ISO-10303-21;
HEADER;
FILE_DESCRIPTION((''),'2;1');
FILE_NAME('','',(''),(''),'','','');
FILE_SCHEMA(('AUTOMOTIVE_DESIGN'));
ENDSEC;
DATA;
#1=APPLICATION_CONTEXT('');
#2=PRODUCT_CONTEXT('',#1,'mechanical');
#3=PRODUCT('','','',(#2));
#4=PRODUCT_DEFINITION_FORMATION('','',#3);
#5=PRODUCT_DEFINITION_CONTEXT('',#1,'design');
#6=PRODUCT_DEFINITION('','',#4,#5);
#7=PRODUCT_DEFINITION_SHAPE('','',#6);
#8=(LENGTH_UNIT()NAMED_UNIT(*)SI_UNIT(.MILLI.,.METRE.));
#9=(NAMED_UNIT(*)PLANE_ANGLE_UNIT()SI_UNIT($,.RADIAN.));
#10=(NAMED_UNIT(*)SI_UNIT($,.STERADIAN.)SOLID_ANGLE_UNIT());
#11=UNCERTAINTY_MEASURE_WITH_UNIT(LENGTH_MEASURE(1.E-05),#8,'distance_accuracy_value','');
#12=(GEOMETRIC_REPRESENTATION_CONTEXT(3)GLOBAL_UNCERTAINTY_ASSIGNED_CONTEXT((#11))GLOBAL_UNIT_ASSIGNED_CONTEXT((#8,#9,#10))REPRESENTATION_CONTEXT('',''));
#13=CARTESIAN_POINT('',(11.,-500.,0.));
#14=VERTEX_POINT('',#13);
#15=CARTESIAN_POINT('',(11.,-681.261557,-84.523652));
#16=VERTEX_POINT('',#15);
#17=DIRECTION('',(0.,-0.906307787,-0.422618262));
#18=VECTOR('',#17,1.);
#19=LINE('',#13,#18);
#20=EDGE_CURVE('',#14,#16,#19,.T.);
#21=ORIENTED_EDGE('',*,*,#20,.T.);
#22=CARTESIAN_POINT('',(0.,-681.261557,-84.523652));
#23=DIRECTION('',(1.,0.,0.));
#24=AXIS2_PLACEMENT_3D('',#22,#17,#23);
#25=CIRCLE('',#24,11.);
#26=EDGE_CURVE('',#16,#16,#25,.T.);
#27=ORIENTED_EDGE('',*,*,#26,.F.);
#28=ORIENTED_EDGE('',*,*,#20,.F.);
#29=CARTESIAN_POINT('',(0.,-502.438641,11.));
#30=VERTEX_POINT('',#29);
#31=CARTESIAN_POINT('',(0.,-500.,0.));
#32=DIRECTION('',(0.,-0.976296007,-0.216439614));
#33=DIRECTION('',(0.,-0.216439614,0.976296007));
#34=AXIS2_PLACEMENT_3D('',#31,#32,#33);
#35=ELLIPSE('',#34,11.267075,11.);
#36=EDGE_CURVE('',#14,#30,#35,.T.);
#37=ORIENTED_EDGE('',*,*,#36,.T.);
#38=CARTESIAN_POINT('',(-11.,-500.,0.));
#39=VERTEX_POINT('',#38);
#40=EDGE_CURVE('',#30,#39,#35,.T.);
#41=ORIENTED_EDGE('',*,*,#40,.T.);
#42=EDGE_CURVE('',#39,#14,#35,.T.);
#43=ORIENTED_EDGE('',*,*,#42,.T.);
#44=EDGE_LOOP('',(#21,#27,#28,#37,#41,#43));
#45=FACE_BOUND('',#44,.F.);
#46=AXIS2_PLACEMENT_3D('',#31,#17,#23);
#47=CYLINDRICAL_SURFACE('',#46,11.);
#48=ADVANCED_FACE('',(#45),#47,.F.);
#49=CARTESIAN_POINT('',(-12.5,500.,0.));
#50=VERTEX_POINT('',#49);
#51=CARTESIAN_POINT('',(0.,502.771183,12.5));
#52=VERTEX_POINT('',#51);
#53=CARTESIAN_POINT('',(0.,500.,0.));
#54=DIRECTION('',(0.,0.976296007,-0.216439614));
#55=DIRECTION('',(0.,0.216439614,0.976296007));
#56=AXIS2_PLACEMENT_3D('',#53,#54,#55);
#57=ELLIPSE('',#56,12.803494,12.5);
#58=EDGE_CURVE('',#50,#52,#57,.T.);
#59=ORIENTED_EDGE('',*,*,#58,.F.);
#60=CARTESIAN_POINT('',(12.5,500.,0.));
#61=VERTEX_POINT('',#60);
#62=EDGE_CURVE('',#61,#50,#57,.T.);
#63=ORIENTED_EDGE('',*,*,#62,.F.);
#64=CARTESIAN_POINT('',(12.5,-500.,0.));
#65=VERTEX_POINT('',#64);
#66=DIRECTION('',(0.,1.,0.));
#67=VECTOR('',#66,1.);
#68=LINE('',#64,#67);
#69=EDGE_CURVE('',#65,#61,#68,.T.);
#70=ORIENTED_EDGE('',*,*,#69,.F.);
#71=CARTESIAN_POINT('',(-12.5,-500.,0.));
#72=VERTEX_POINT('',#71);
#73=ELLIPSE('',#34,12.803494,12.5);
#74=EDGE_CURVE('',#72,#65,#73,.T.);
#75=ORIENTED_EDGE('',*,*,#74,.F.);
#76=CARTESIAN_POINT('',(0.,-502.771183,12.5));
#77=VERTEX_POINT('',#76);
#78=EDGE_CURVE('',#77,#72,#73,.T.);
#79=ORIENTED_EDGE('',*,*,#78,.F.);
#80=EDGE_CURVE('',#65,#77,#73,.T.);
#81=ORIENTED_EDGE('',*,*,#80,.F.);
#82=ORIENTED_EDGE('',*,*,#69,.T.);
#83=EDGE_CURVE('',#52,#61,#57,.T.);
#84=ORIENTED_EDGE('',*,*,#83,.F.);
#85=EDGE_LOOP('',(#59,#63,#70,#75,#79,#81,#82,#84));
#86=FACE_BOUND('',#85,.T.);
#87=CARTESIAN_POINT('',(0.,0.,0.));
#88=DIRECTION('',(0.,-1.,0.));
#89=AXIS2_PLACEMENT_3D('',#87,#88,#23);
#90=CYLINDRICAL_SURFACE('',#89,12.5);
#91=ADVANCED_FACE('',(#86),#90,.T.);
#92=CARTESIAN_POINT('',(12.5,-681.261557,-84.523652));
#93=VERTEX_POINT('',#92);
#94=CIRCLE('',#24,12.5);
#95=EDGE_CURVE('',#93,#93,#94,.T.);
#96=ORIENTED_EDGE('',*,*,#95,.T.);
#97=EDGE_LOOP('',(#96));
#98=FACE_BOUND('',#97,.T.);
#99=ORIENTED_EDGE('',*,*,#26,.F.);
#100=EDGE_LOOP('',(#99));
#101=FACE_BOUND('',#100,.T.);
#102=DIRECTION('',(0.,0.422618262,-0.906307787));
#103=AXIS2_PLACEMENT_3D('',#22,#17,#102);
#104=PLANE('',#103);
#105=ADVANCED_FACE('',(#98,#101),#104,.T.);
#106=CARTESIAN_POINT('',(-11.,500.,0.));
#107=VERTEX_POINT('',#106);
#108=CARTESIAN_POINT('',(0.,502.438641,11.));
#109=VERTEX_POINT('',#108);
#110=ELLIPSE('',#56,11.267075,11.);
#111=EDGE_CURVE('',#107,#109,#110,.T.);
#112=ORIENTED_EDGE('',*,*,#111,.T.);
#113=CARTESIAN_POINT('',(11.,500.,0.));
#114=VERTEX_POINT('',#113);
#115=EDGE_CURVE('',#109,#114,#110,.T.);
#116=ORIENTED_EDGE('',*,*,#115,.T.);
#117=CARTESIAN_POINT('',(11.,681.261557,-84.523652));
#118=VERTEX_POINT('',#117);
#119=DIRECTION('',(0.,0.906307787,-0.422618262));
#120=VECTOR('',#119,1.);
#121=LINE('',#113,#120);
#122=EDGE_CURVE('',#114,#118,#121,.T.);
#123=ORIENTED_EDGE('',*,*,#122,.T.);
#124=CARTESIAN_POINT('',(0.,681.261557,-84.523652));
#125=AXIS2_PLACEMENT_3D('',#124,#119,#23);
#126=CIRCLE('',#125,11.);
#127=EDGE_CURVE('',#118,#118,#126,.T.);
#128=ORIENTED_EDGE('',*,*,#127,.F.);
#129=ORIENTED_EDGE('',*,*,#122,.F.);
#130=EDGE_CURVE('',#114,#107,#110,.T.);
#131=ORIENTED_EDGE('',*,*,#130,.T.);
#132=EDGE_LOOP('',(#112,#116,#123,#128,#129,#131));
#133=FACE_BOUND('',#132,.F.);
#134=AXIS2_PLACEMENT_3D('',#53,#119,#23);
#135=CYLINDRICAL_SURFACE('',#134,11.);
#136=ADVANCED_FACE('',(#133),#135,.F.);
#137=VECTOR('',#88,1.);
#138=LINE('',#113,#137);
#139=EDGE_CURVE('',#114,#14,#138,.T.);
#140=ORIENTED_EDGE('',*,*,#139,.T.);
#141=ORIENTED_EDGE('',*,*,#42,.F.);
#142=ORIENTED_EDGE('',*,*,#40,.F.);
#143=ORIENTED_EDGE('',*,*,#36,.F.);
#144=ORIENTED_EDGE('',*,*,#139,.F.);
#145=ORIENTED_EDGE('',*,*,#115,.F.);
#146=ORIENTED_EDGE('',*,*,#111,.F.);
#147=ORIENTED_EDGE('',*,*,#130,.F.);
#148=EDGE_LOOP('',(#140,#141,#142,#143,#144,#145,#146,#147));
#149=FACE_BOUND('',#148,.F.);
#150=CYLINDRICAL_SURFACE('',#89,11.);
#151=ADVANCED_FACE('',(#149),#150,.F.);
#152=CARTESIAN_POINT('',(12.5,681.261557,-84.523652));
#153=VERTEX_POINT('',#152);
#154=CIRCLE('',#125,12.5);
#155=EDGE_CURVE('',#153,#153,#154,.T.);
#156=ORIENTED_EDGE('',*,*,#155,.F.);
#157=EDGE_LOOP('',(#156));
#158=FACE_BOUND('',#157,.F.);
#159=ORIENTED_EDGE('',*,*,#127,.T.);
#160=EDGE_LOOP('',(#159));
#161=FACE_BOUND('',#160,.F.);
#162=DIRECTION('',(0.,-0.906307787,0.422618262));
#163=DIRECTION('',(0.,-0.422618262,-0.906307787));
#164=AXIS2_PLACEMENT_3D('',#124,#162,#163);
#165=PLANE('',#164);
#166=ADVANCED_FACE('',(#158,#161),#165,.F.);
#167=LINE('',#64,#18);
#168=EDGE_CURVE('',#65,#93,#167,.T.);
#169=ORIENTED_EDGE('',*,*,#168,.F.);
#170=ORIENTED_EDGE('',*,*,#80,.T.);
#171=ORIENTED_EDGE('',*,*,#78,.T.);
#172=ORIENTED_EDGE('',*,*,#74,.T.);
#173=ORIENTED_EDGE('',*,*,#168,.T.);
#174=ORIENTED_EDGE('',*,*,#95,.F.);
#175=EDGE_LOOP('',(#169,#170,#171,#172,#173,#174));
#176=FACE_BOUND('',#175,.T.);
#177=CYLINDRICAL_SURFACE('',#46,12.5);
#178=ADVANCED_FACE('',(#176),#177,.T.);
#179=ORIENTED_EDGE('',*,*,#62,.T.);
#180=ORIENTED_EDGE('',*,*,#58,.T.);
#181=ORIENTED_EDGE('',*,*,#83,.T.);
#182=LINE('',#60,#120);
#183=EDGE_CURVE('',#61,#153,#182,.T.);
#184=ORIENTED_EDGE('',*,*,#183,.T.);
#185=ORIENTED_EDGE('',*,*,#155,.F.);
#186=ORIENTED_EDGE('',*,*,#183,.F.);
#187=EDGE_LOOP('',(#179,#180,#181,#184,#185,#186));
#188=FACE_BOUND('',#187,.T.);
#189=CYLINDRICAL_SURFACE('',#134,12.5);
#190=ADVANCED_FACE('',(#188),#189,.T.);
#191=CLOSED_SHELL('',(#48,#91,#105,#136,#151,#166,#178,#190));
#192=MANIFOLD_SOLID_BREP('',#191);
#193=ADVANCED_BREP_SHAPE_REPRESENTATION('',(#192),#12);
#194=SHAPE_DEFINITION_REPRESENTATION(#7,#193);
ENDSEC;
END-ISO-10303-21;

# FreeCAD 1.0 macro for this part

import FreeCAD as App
import Part
import Sketcher
Q = App.Units.Quantity

doc = App.newDocument("Part")
body = doc.addObject("PartDesign::Body", "Body")

# Sketch on XZ plane
sketch1 = body.newObject("Sketcher::SketchObject", "Sketch")
sketch1.AttachmentSupport = (doc.getObject("XZ_Plane"), [""])
sketch1.MapMode = "FlatFace"
sketch1.addGeometry([
    Part.Circle(App.Vector(0, 0, 0), App.Vector(0, 0, 1), 12),
    Part.Circle(App.Vector(0, 0, 0), App.Vector(0, 0, 1), 11),
], False)
sketch1.addConstraint([
    Sketcher.Constraint("Coincident", 0, 3, -1, 1),
    Sketcher.Constraint("Coincident", 1, 3, -1, 1),
    Sketcher.Constraint("Diameter", 0, Q("25 mm")),
    Sketcher.Constraint("Diameter", 1, Q("22 mm")),
])

# Sketch on YZ plane
sketch2 = body.newObject("Sketcher::SketchObject", "Sketch001")
sketch2.AttachmentSupport = (doc.getObject("YZ_Plane"), [""])
sketch2.MapMode = "FlatFace"
sketch2.addGeometry([
    Part.LineSegment(App.Vector(0, 0, 0), App.Vector(500, 0, 0)),
    Part.LineSegment(App.Vector(500, 0, 0), App.Vector(681, -85, 0)),
], False)
sketch2.addConstraint([
    Sketcher.Constraint("Coincident", 0, 2, 1, 1),
    Sketcher.Constraint("Horizontal", 0),
    Sketcher.Constraint("Coincident", 0, 1, -1, 1),
    Sketcher.Constraint("DistanceX", 0, 1, 0, 2, Q("500 mm")),
    Sketcher.Constraint("Angle", 1, Q("-25 deg")),
    Sketcher.Constraint("Distance", 1, Q("200 mm")),
])
doc.recompute()

additivepipe = body.newObject("PartDesign::AdditivePipe", "AdditivePipe")
additivepipe.Profile = sketch1
additivepipe.Spine = (sketch2, ["Edge1", "Edge2"])
additivepipe.Transition = "Right corner"

# Sketch on XZ plane
sketch3 = body.newObject("Sketcher::SketchObject", "Sketch002")
sketch3.AttachmentSupport = (doc.getObject("XZ_Plane"), [""])
sketch3.MapMode = "FlatFace"
sketch3.addGeometry([
    Part.Circle(App.Vector(0, 0, 0), App.Vector(0, 0, 1), 12),
    Part.Circle(App.Vector(0, 0, 0), App.Vector(0, 0, 1), 11),
], False)
sketch3.addConstraint([
    Sketcher.Constraint("Coincident", 0, 3, -1, 1),
    Sketcher.Constraint("Coincident", 1, 3, -1, 1),
    Sketcher.Constraint("Diameter", 0, Q("25 mm")),
    Sketcher.Constraint("Diameter", 1, Q("22 mm")),
])

# Sketch on YZ plane
sketch4 = body.newObject("Sketcher::SketchObject", "Sketch003")
sketch4.AttachmentSupport = (doc.getObject("YZ_Plane"), [""])
sketch4.MapMode = "FlatFace"
sketch4.addGeometry([
    Part.LineSegment(App.Vector(0, 0, 0), App.Vector(-500, 0, 0)),
    Part.LineSegment(App.Vector(-500, 0, 0), App.Vector(-681, -85, 0)),
], False)
sketch4.addConstraint([
    Sketcher.Constraint("Coincident", 0, 2, 1, 1),
    Sketcher.Constraint("Horizontal", 0),
    Sketcher.Constraint("Coincident", 0, 1, -1, 1),
    Sketcher.Constraint("DistanceX", 0, 2, 0, 1, Q("500 mm")),
    Sketcher.Constraint("Angle", 1, Q("-155 deg")),
    Sketcher.Constraint("Distance", 1, Q("200 mm")),
])
doc.recompute()

additivepipe2 = body.newObject("PartDesign::AdditivePipe", "AdditivePipe001")
additivepipe2.Profile = sketch3
additivepipe2.Spine = (sketch4, ["Edge1", "Edge2"])
additivepipe2.Transition = "Right corner"

doc.recompute()
